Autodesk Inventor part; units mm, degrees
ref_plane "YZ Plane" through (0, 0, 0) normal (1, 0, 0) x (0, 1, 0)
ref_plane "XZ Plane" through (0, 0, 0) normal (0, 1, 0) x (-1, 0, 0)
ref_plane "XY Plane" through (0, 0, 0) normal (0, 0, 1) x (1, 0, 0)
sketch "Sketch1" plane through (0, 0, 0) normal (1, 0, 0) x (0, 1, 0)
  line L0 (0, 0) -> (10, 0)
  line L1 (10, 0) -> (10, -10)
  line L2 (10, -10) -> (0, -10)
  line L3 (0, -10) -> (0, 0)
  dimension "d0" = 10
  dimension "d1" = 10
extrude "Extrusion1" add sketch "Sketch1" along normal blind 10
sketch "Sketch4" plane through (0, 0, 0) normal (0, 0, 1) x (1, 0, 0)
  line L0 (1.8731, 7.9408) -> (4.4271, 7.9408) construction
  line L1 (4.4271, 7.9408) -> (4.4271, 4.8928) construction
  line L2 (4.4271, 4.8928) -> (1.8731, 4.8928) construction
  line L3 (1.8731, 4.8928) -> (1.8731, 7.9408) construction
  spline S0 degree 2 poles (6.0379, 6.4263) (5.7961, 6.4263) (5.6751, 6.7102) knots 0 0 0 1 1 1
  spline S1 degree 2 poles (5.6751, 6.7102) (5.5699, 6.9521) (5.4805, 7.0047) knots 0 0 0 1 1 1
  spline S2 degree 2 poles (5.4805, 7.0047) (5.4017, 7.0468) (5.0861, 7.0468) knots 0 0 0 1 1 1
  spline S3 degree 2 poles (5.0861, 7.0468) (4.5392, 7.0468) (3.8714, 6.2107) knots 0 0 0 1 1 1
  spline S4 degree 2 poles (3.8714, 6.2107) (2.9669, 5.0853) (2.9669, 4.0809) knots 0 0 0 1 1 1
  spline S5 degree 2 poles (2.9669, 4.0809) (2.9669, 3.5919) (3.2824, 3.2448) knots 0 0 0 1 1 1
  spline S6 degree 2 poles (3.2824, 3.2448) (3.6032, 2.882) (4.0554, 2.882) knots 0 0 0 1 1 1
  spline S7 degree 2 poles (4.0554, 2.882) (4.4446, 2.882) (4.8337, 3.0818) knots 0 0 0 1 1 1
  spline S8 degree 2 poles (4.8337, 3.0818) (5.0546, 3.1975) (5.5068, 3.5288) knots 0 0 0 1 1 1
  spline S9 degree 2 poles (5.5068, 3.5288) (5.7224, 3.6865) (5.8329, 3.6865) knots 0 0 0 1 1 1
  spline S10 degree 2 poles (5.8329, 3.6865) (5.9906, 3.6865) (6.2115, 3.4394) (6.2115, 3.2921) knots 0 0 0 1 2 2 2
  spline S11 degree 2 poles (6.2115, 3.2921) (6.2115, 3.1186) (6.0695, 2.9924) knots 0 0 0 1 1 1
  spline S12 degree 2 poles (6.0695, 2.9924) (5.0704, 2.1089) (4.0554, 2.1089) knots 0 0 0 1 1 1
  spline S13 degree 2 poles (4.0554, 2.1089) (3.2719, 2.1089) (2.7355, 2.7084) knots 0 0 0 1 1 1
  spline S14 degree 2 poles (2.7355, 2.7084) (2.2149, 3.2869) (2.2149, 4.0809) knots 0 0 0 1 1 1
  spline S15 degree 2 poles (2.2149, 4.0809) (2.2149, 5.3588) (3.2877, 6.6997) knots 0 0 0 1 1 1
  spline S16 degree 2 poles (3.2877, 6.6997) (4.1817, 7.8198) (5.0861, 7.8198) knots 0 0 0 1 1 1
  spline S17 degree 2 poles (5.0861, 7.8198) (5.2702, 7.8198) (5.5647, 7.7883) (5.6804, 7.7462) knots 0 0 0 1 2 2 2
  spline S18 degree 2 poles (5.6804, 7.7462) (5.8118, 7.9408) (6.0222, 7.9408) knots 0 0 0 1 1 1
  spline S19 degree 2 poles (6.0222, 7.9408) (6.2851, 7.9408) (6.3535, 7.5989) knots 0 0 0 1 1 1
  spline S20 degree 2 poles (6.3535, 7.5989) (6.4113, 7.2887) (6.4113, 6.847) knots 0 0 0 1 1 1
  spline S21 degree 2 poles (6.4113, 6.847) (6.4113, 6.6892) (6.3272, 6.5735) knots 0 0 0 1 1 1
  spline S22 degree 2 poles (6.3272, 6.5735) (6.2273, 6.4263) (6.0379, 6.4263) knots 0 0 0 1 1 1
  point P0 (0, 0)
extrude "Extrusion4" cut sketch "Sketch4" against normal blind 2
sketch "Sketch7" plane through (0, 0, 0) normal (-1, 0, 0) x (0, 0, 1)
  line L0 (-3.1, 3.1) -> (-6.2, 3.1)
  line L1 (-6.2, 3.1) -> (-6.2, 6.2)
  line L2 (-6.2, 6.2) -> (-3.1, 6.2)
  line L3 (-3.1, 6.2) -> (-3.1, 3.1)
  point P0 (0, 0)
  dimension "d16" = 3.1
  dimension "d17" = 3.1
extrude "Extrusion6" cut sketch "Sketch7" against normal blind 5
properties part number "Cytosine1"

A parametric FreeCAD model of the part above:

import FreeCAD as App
import Part
import Sketcher


def add_polygon(sketch, points):
    """Adds a closed chain of lines whose ends are joined by coincident constraints."""
    first, n = sketch.GeometryCount, len(points)
    for a, b in zip(points, points[1:] + points[:1]):
        sketch.addGeometry(Part.LineSegment(App.Vector(*a, 0), App.Vector(*b, 0)), False)
    for i in range(n):
        sketch.addConstraint(Sketcher.Constraint("Coincident", first + i, 2, first + (i + 1) % n, 1))

doc = App.newDocument("Part")
params = doc.addObject("Spreadsheet::Sheet", "Params")
for row, (alias, value) in enumerate([
    ("sketch1_width", "10 mm"),
    ("pad1_length", "10 mm"),
    ("pocket1_length", "2 mm"),
    ("sketch3_width", "3.1 mm"),
    ("pocket2_length", "5 mm"),
], start=1):
    params.set(f"A{row}", alias)
    params.set(f"B{row}", "=" + value)
    params.setAlias(f"B{row}", alias)

body = doc.addObject("PartDesign::Body", "Body")

sketch1 = body.newObject("Sketcher::SketchObject", "Sketch")
sketch1.AttachmentSupport = (doc.getObject("YZ_Plane"), [""])
sketch1.MapMode = "FlatFace"
add_polygon(sketch1, [(10, 0), (0, 0), (0, -10), (10, -10)])
sketch1.addConstraint(Sketcher.Constraint("Horizontal", 0))
sketch1.addConstraint(Sketcher.Constraint("Vertical", 1))
sketch1.addConstraint(Sketcher.Constraint("Horizontal", 2))
sketch1.addConstraint(Sketcher.Constraint("Vertical", 3))
sketch1.addConstraint(Sketcher.Constraint("Coincident", 0, 2, -1, 1))
sketch1.addConstraint(Sketcher.Constraint("Equal", 2, 1))
sketch1.addConstraint(Sketcher.Constraint("DistanceX", 0, 2, 0, 1, 10.0))
sketch1.setExpression("Constraints[10]", "Params.sketch1_width")
pad1 = body.newObject("PartDesign::Pad", "Pad")
pad1.Profile = sketch1
pad1.setExpression("Length", "Params.pad1_length")

sketch2 = body.newObject("Sketcher::SketchObject", "Sketch001")
sketch2.AttachmentSupport = (doc.getObject("XY_Plane"), [""])
sketch2.MapMode = "FlatFace"
sketch2.addGeometry(Part.BSplineCurve([App.Vector(6.0379, 6.4263, 0), App.Vector(5.7961, 6.4263, 0), App.Vector(5.6751, 6.7102, 0)], [3, 3], [0, 1], False, 2, [1, 1, 1], False), False)
sketch2.addGeometry(Part.BSplineCurve([App.Vector(6.3272, 6.5735, 0), App.Vector(6.2273, 6.4263, 0), App.Vector(6.0379, 6.4263, 0)], [3, 3], [0, 1], False, 2, [1, 1, 1], False), False)
sketch2.addGeometry(Part.BSplineCurve([App.Vector(6.4113, 6.847, 0), App.Vector(6.4113, 6.6892, 0), App.Vector(6.3272, 6.5735, 0)], [3, 3], [0, 1], False, 2, [1, 1, 1], False), False)
sketch2.addGeometry(Part.BSplineCurve([App.Vector(6.3535, 7.5989, 0), App.Vector(6.4113, 7.2887, 0), App.Vector(6.4113, 6.847, 0)], [3, 3], [0, 1], False, 2, [1, 1, 1], False), False)
sketch2.addGeometry(Part.BSplineCurve([App.Vector(6.0222, 7.9408, 0), App.Vector(6.2851, 7.9408, 0), App.Vector(6.3535, 7.5989, 0)], [3, 3], [0, 1], False, 2, [1, 1, 1], False), False)
sketch2.addGeometry(Part.BSplineCurve([App.Vector(5.6804, 7.7462, 0), App.Vector(5.8118, 7.9408, 0), App.Vector(6.0222, 7.9408, 0)], [3, 3], [0, 1], False, 2, [1, 1, 1], False), False)
sketch2.addGeometry(Part.BSplineCurve([App.Vector(5.0861, 7.8198, 0), App.Vector(5.2702, 7.8198, 0), App.Vector(5.5647, 7.7883, 0), App.Vector(5.6804, 7.7462, 0)], [3, 1, 3], [0, 1, 2], False, 2, [1, 1, 1, 1], False), False)
sketch2.addGeometry(Part.BSplineCurve([App.Vector(3.2877, 6.6997, 0), App.Vector(4.1817, 7.8198, 0), App.Vector(5.0861, 7.8198, 0)], [3, 3], [0, 1], False, 2, [1, 1, 1], False), False)
sketch2.addGeometry(Part.BSplineCurve([App.Vector(2.2149, 4.0809, 0), App.Vector(2.2149, 5.3588, 0), App.Vector(3.2877, 6.6997, 0)], [3, 3], [0, 1], False, 2, [1, 1, 1], False), False)
sketch2.addGeometry(Part.BSplineCurve([App.Vector(2.7355, 2.7084, 0), App.Vector(2.2149, 3.2869, 0), App.Vector(2.2149, 4.0809, 0)], [3, 3], [0, 1], False, 2, [1, 1, 1], False), False)
sketch2.addGeometry(Part.BSplineCurve([App.Vector(4.0554, 2.1089, 0), App.Vector(3.2719, 2.1089, 0), App.Vector(2.7355, 2.7084, 0)], [3, 3], [0, 1], False, 2, [1, 1, 1], False), False)
sketch2.addGeometry(Part.BSplineCurve([App.Vector(6.0695, 2.9924, 0), App.Vector(5.0704, 2.1089, 0), App.Vector(4.0554, 2.1089, 0)], [3, 3], [0, 1], False, 2, [1, 1, 1], False), False)
sketch2.addGeometry(Part.BSplineCurve([App.Vector(6.2115, 3.2921, 0), App.Vector(6.2115, 3.1186, 0), App.Vector(6.0695, 2.9924, 0)], [3, 3], [0, 1], False, 2, [1, 1, 1], False), False)
sketch2.addGeometry(Part.BSplineCurve([App.Vector(5.8329, 3.6865, 0), App.Vector(5.9906, 3.6865, 0), App.Vector(6.2115, 3.4394, 0), App.Vector(6.2115, 3.2921, 0)], [3, 1, 3], [0, 1, 2], False, 2, [1, 1, 1, 1], False), False)
sketch2.addGeometry(Part.BSplineCurve([App.Vector(5.5068, 3.5288, 0), App.Vector(5.7224, 3.6865, 0), App.Vector(5.8329, 3.6865, 0)], [3, 3], [0, 1], False, 2, [1, 1, 1], False), False)
sketch2.addGeometry(Part.BSplineCurve([App.Vector(4.8337, 3.0818, 0), App.Vector(5.0546, 3.1975, 0), App.Vector(5.5068, 3.5288, 0)], [3, 3], [0, 1], False, 2, [1, 1, 1], False), False)
sketch2.addGeometry(Part.BSplineCurve([App.Vector(4.0554, 2.882, 0), App.Vector(4.4446, 2.882, 0), App.Vector(4.8337, 3.0818, 0)], [3, 3], [0, 1], False, 2, [1, 1, 1], False), False)
sketch2.addGeometry(Part.BSplineCurve([App.Vector(3.2824, 3.2448, 0), App.Vector(3.6032, 2.882, 0), App.Vector(4.0554, 2.882, 0)], [3, 3], [0, 1], False, 2, [1, 1, 1], False), False)
sketch2.addGeometry(Part.BSplineCurve([App.Vector(2.9669, 4.0809, 0), App.Vector(2.9669, 3.5919, 0), App.Vector(3.2824, 3.2448, 0)], [3, 3], [0, 1], False, 2, [1, 1, 1], False), False)
sketch2.addGeometry(Part.BSplineCurve([App.Vector(3.8714, 6.2107, 0), App.Vector(2.9669, 5.0853, 0), App.Vector(2.9669, 4.0809, 0)], [3, 3], [0, 1], False, 2, [1, 1, 1], False), False)
sketch2.addGeometry(Part.BSplineCurve([App.Vector(5.0861, 7.0468, 0), App.Vector(4.5392, 7.0468, 0), App.Vector(3.8714, 6.2107, 0)], [3, 3], [0, 1], False, 2, [1, 1, 1], False), False)
sketch2.addGeometry(Part.BSplineCurve([App.Vector(5.4805, 7.0047, 0), App.Vector(5.4017, 7.0468, 0), App.Vector(5.0861, 7.0468, 0)], [3, 3], [0, 1], False, 2, [1, 1, 1], False), False)
sketch2.addGeometry(Part.BSplineCurve([App.Vector(5.6751, 6.7102, 0), App.Vector(5.5699, 6.9521, 0), App.Vector(5.4805, 7.0047, 0)], [3, 3], [0, 1], False, 2, [1, 1, 1], False), False)
sketch2.addConstraint(Sketcher.Constraint("Block", 0))
sketch2.addConstraint(Sketcher.Constraint("Block", 1))
sketch2.addConstraint(Sketcher.Constraint("Block", 2))
sketch2.addConstraint(Sketcher.Constraint("Block", 3))
sketch2.addConstraint(Sketcher.Constraint("Block", 4))
sketch2.addConstraint(Sketcher.Constraint("Block", 5))
sketch2.addConstraint(Sketcher.Constraint("Block", 6))
sketch2.addConstraint(Sketcher.Constraint("Block", 7))
sketch2.addConstraint(Sketcher.Constraint("Block", 8))
sketch2.addConstraint(Sketcher.Constraint("Block", 9))
sketch2.addConstraint(Sketcher.Constraint("Block", 10))
sketch2.addConstraint(Sketcher.Constraint("Block", 11))
sketch2.addConstraint(Sketcher.Constraint("Block", 12))
sketch2.addConstraint(Sketcher.Constraint("Block", 13))
sketch2.addConstraint(Sketcher.Constraint("Block", 14))
sketch2.addConstraint(Sketcher.Constraint("Block", 15))
sketch2.addConstraint(Sketcher.Constraint("Block", 16))
sketch2.addConstraint(Sketcher.Constraint("Block", 17))
sketch2.addConstraint(Sketcher.Constraint("Block", 18))
sketch2.addConstraint(Sketcher.Constraint("Block", 19))
sketch2.addConstraint(Sketcher.Constraint("Block", 20))
sketch2.addConstraint(Sketcher.Constraint("Block", 21))
sketch2.addConstraint(Sketcher.Constraint("Block", 22))
pocket1 = body.newObject("PartDesign::Pocket", "Pocket")
pocket1.Profile = sketch2
pocket1.setExpression("Length", "Params.pocket1_length")

sketch3 = body.newObject("Sketcher::SketchObject", "Sketch002")
sketch3.AttachmentSupport = (doc.getObject("YZ_Plane"), [""])
sketch3.MapMode = "FlatFace"
add_polygon(sketch3, [(3.1, -6.2), (3.1, -3.1), (6.2, -3.1), (6.2, -6.2)])
sketch3.addConstraint(Sketcher.Constraint("Vertical", 0))
sketch3.addConstraint(Sketcher.Constraint("Horizontal", 1))
sketch3.addConstraint(Sketcher.Constraint("Vertical", 2))
sketch3.addConstraint(Sketcher.Constraint("Horizontal", 3))
sketch3.addConstraint(Sketcher.Constraint("Equal", 3, 0))
sketch3.addConstraint(Sketcher.Constraint("DistanceX", 1, 1, 1, 2, 3.1))
sketch3.addConstraint(Sketcher.Constraint("DistanceX", -1, 1, 0, 2, 3.1))
sketch3.addConstraint(Sketcher.Constraint("DistanceY", 0, 2, -1, 1, 3.1))
sketch3.setExpression("Constraints[9]", "Params.sketch3_width")
pocket2 = body.newObject("PartDesign::Pocket", "Pocket001")
pocket2.Profile = sketch3
pocket2.setExpression("Length", "Params.pocket2_length")
pocket2.Reversed = True

doc.recompute()
